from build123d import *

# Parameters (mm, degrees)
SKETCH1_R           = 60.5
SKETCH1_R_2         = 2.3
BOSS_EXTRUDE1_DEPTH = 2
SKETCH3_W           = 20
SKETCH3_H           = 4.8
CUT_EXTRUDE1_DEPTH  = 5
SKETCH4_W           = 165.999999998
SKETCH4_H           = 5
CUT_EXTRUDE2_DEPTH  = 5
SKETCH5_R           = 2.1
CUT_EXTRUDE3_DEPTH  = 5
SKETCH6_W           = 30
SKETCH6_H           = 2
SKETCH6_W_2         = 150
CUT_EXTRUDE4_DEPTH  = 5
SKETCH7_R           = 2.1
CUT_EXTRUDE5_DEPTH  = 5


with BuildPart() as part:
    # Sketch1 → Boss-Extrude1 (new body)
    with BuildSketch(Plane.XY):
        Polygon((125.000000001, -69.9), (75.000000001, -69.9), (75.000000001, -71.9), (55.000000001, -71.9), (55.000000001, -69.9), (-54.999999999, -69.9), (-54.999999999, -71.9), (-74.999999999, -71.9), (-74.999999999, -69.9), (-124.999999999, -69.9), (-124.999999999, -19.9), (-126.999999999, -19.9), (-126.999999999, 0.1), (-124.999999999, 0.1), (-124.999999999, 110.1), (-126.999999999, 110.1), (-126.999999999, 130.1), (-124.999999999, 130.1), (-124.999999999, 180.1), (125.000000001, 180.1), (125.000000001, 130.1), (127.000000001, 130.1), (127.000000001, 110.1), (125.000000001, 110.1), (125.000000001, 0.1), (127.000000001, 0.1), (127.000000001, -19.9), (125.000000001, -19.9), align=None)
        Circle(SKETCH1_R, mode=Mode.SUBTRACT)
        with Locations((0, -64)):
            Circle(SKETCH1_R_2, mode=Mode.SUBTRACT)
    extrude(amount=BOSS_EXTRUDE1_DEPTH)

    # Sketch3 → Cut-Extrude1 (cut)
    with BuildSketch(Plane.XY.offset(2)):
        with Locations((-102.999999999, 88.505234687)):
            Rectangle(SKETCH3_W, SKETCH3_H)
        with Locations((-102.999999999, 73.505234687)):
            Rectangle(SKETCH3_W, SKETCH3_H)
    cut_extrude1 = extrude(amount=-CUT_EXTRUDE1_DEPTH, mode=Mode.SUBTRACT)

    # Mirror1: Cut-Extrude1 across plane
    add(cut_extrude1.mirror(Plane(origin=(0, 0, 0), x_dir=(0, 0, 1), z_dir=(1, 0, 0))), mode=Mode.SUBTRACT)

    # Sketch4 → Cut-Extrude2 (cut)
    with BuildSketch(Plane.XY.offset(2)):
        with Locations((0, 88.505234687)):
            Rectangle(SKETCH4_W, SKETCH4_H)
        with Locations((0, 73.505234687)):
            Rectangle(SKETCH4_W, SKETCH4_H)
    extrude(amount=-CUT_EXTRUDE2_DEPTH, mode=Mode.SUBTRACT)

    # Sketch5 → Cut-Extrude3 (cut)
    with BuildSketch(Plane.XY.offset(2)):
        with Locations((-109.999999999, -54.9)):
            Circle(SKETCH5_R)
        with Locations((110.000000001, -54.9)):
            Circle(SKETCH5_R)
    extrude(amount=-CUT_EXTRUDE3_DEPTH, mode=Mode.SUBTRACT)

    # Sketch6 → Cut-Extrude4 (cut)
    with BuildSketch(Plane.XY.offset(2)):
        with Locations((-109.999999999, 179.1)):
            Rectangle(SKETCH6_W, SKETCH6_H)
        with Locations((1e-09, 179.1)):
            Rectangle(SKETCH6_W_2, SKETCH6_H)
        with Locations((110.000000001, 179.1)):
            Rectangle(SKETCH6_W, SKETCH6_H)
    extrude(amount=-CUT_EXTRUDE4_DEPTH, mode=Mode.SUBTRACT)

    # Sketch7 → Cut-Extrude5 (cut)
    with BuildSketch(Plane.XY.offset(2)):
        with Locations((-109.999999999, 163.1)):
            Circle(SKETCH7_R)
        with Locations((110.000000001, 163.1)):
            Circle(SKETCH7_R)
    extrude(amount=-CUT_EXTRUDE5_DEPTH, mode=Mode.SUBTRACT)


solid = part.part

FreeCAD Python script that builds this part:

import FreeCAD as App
import Part
import Sketcher
from FreeCAD import Vector


def add_polygon(sketch, points):
    """Adds a closed chain of lines whose ends are joined by coincident constraints."""
    first, n = sketch.GeometryCount, len(points)
    for a, b in zip(points, points[1:] + points[:1]):
        sketch.addGeometry(Part.LineSegment(App.Vector(*a, 0), App.Vector(*b, 0)), False)
    for i in range(n):
        sketch.addConstraint(Sketcher.Constraint("Coincident", first + i, 2, first + (i + 1) % n, 1))

doc = App.newDocument("Part")
body = doc.addObject("PartDesign::Body", "Body")

# Sketch on XY plane
sketch1 = body.newObject("Sketcher::SketchObject", "Sketch")
sketch1.AttachmentSupport = (doc.getObject("XY_Plane"), [""])
sketch1.MapMode = "FlatFace"
add_polygon(sketch1, [(75, -69.9), (125, -69.9), (125, -19.9), (127, -19.9), (127, 0.1), (125, 0.1), (125, 110.1), (127, 110.1), (127, 130.1), (125, 130.1), (125, 180.1), (-125, 180.1), (-125, 130.1), (-127, 130.1), (-127, 110.1), (-125, 110.1), (-125, 0.1), (-127, 0.1), (-127, -19.9), (-125, -19.9), (-125, -69.9), (-75, -69.9), (-75, -71.9), (-55, -71.9), (-55, -69.9), (55, -69.9), (55, -71.9), (75, -71.9)])  # lines 0-27
sketch1.addGeometry(Part.Circle(Vector(0, -64, 0), Vector(0, 0, 1), 2.3), False)  # 28
sketch1.addGeometry(Part.Circle(Vector(0, 0, 0), Vector(0, 0, 1), 60.5), False)  # 29
sketch1.addConstraint(Sketcher.Constraint("Horizontal", 0))
sketch1.addConstraint(Sketcher.Constraint("Vertical", 1))
sketch1.addConstraint(Sketcher.Constraint("Horizontal", 2))
sketch1.addConstraint(Sketcher.Constraint("Vertical", 3))
sketch1.addConstraint(Sketcher.Constraint("Horizontal", 4))
sketch1.addConstraint(Sketcher.Constraint("Vertical", 5))
sketch1.addConstraint(Sketcher.Constraint("Horizontal", 6))
sketch1.addConstraint(Sketcher.Constraint("Vertical", 7))
sketch1.addConstraint(Sketcher.Constraint("Horizontal", 8))
sketch1.addConstraint(Sketcher.Constraint("Vertical", 9))
sketch1.addConstraint(Sketcher.Constraint("Horizontal", 10))
sketch1.addConstraint(Sketcher.Constraint("Vertical", 11))
sketch1.addConstraint(Sketcher.Constraint("Horizontal", 12))
sketch1.addConstraint(Sketcher.Constraint("Vertical", 13))
sketch1.addConstraint(Sketcher.Constraint("Horizontal", 14))
sketch1.addConstraint(Sketcher.Constraint("Vertical", 15))
sketch1.addConstraint(Sketcher.Constraint("Horizontal", 16))
sketch1.addConstraint(Sketcher.Constraint("Vertical", 17))
sketch1.addConstraint(Sketcher.Constraint("Horizontal", 18))
sketch1.addConstraint(Sketcher.Constraint("Vertical", 19))
sketch1.addConstraint(Sketcher.Constraint("Horizontal", 20))
sketch1.addConstraint(Sketcher.Constraint("Vertical", 21))
sketch1.addConstraint(Sketcher.Constraint("Horizontal", 22))
sketch1.addConstraint(Sketcher.Constraint("Vertical", 23))
sketch1.addConstraint(Sketcher.Constraint("Horizontal", 24))
sketch1.addConstraint(Sketcher.Constraint("Vertical", 25))
sketch1.addConstraint(Sketcher.Constraint("Horizontal", 26))
sketch1.addConstraint(Sketcher.Constraint("Vertical", 27))
sketch1.addConstraint(Sketcher.Constraint("Coincident", 29, 3, -1, 1))
sketch1.addConstraint(Sketcher.Constraint("Symmetric", 8, 2, 11, 2, -2))
sketch1.addConstraint(Sketcher.Constraint("Symmetric", 6, 2, 13, 2, -2))
sketch1.addConstraint(Sketcher.Constraint("Symmetric", 4, 2, 15, 2, -2))
sketch1.addConstraint(Sketcher.Constraint("Symmetric", 2, 2, 17, 2, -2))
sketch1.addConstraint(Sketcher.Constraint("Symmetric", 0, 2, 19, 2, -2))
sketch1.addConstraint(Sketcher.Constraint("Symmetric", 22, 2, 25, 2, -2))
sketch1.addConstraint(Sketcher.Constraint("PointOnObject", 28, 3, -2))
sketch1.addConstraint(Sketcher.Constraint("Horizontal", 20, 2, 23, 2))
sketch1.addConstraint(Sketcher.Constraint("Vertical", 1, 2, 4, 2))
sketch1.addConstraint(Sketcher.Constraint("Vertical", 3, 2, 6, 2))
sketch1.addConstraint(Sketcher.Constraint("Vertical", 5, 2, 8, 2))
sketch1.addConstraint(Sketcher.Constraint("Equal", 0, 20))
sketch1.addConstraint(Sketcher.Constraint("Equal", 20, 1))
sketch1.addConstraint(Sketcher.Constraint("Equal", 26, 3))
sketch1.addConstraint(Sketcher.Constraint("Equal", 24, 5))
sketch1.addConstraint(Sketcher.Constraint("Equal", 3, 7))
sketch1.addConstraint(Sketcher.Constraint("Equal", 1, 9))
sketch1.addConstraint(Sketcher.Constraint("Equal", 18, 21))
sketch1.addConstraint(Sketcher.Constraint("Diameter", 29, 121.0))
sketch1.addConstraint(Sketcher.Constraint("Diameter", 28, 4.6))
sketch1.addConstraint(Sketcher.Constraint("DistanceX", 0, 1, 0, 2, 50.0))
sketch1.addConstraint(Sketcher.Constraint("DistanceX", 2, 1, 2, 2, 2.0))
sketch1.addConstraint(Sketcher.Constraint("DistanceX", 10, 2, 10, 1, 250.0))
sketch1.addConstraint(Sketcher.Constraint("DistanceX", 22, 1, 22, 2, 20.0))
sketch1.addConstraint(Sketcher.Constraint("DistanceY", 28, 3, -1, 1, 64.0))
sketch1.addConstraint(Sketcher.Constraint("DistanceY", 0, 2, -1, 1, 69.9))
pad1 = body.newObject("PartDesign::Pad", "Pad")
pad1.Profile = sketch1
pad1.Length = 2

# Sketch on XY plane
sketch2 = body.newObject("Sketcher::SketchObject", "Sketch001")
sketch2.AttachmentSupport = (doc.getObject("XY_Plane"), [""])
sketch2.MapMode = "FlatFace"
sketch2.AttachmentOffset = App.Placement(Vector(0, 0, 2), App.Rotation())
add_polygon(sketch2, [(-113, 90.905235), (-113, 86.105235), (-93, 86.105235), (-93, 90.905235)])  # lines 0-3
add_polygon(sketch2, [(-113, 75.905235), (-113, 71.105235), (-93, 71.105235), (-93, 75.905235)])  # lines 4-7
sketch2.addConstraint(Sketcher.Constraint("Vertical", 0))
sketch2.addConstraint(Sketcher.Constraint("Horizontal", 1))
sketch2.addConstraint(Sketcher.Constraint("Vertical", 2))
sketch2.addConstraint(Sketcher.Constraint("Horizontal", 3))
sketch2.addConstraint(Sketcher.Constraint("Vertical", 4))
sketch2.addConstraint(Sketcher.Constraint("Horizontal", 5))
sketch2.addConstraint(Sketcher.Constraint("Vertical", 6))
sketch2.addConstraint(Sketcher.Constraint("Horizontal", 7))
sketch2.addConstraint(Sketcher.Constraint("Vertical", 3, 2, 4, 2))
sketch2.addConstraint(Sketcher.Constraint("Vertical", 2, 2, 5, 2))
sketch2.addConstraint(Sketcher.Constraint("Equal", 2, 4))
sketch2.addConstraint(Sketcher.Constraint("DistanceX", 1, 1, 1, 2, 20.0))
sketch2.addConstraint(Sketcher.Constraint("DistanceY", 0, 2, 0, 1, 4.8))
sketch2.addConstraint(Sketcher.Constraint("DistanceX", 0, 2, -1, 1, 113.0))
sketch2.addConstraint(Sketcher.Constraint("DistanceY", 4, 2, 0, 2, 15.0))
sketch2.addConstraint(Sketcher.Constraint("DistanceY", -1, 1, 0, 2, 86.105235))
pocket1 = body.newObject("PartDesign::Pocket", "Pocket")
pocket1.Profile = sketch2
pocket1.Length = 5
doc.recompute()

mirrored = body.newObject("PartDesign::Mirrored", "Mirrored")
mirrored.Originals = [pocket1]
mirrored.MirrorPlane = (doc.getObject("YZ_Plane"), [""])
body.Tip = mirrored

# Sketch on XY plane
sketch3 = body.newObject("Sketcher::SketchObject", "Sketch002")
sketch3.AttachmentSupport = (doc.getObject("XY_Plane"), [""])
sketch3.MapMode = "FlatFace"
sketch3.AttachmentOffset = App.Placement(Vector(0, 0, 2), App.Rotation())
add_polygon(sketch3, [(-83, 91.005235), (-83, 86.005235), (83, 86.005235), (83, 91.005235)])  # lines 0-3
add_polygon(sketch3, [(-83, 76.005235), (-83, 71.005235), (83, 71.005235), (83, 76.005235)])  # lines 4-7
sketch3.addConstraint(Sketcher.Constraint("Vertical", 0))
sketch3.addConstraint(Sketcher.Constraint("Horizontal", 1))
sketch3.addConstraint(Sketcher.Constraint("Vertical", 2))
sketch3.addConstraint(Sketcher.Constraint("Horizontal", 3))
sketch3.addConstraint(Sketcher.Constraint("Vertical", 4))
sketch3.addConstraint(Sketcher.Constraint("Horizontal", 5))
sketch3.addConstraint(Sketcher.Constraint("Vertical", 6))
sketch3.addConstraint(Sketcher.Constraint("Horizontal", 7))
sketch3.addConstraint(Sketcher.Constraint("Vertical", 3, 2, 4, 2))
sketch3.addConstraint(Sketcher.Constraint("Vertical", 2, 2, 5, 2))
sketch3.addConstraint(Sketcher.Constraint("Equal", 2, 4))
sketch3.addConstraint(Sketcher.Constraint("DistanceX", 1, 1, 1, 2, 166.0))
sketch3.addConstraint(Sketcher.Constraint("DistanceY", 0, 2, 0, 1, 5.0))
sketch3.addConstraint(Sketcher.Constraint("DistanceX", 0, 2, -1, 1, 83.0))
sketch3.addConstraint(Sketcher.Constraint("DistanceY", 4, 2, 0, 2, 15.0))
sketch3.addConstraint(Sketcher.Constraint("DistanceY", -1, 1, 0, 2, 86.005235))
pocket2 = body.newObject("PartDesign::Pocket", "Pocket001")
pocket2.Profile = sketch3
pocket2.Length = 5

# Sketch on XY plane
sketch4 = body.newObject("Sketcher::SketchObject", "Sketch003")
sketch4.AttachmentSupport = (doc.getObject("XY_Plane"), [""])
sketch4.MapMode = "FlatFace"
sketch4.AttachmentOffset = App.Placement(Vector(0, 0, 2), App.Rotation())
sketch4.addGeometry(Part.Circle(Vector(-110, -54.9, 0), Vector(0, 0, 1), 2.1), False)
sketch4.addGeometry(Part.Circle(Vector(110, -54.9, 0), Vector(0, 0, 1), 2.1), False)
sketch4.addConstraint(Sketcher.Constraint("Equal", 0, 1))
sketch4.addConstraint(Sketcher.Constraint("Symmetric", 0, 3, 1, 3, -2))
sketch4.addConstraint(Sketcher.Constraint("Diameter", 0, 4.2))
sketch4.addConstraint(Sketcher.Constraint("DistanceX", 0, 3, -1, 1, 110.0))
sketch4.addConstraint(Sketcher.Constraint("DistanceY", 0, 3, -1, 1, 54.9))
pocket3 = body.newObject("PartDesign::Pocket", "Pocket002")
pocket3.Profile = sketch4
pocket3.Length = 5

# Sketch on XY plane
sketch5 = body.newObject("Sketcher::SketchObject", "Sketch004")
sketch5.AttachmentSupport = (doc.getObject("XY_Plane"), [""])
sketch5.MapMode = "FlatFace"
sketch5.AttachmentOffset = App.Placement(Vector(0, 0, 2), App.Rotation())
add_polygon(sketch5, [(-125, 180.1), (-125, 178.1), (-95, 178.1), (-95, 180.1)])  # lines 0-3
add_polygon(sketch5, [(-75, 180.1), (-75, 178.1), (75, 178.1), (75, 180.1)])  # lines 4-7
add_polygon(sketch5, [(95, 180.1), (95, 178.1), (125, 178.1), (125, 180.1)])  # lines 8-11
sketch5.addConstraint(Sketcher.Constraint("Vertical", 0))
sketch5.addConstraint(Sketcher.Constraint("Horizontal", 1))
sketch5.addConstraint(Sketcher.Constraint("Vertical", 2))
sketch5.addConstraint(Sketcher.Constraint("Horizontal", 3))
sketch5.addConstraint(Sketcher.Constraint("Vertical", 4))
sketch5.addConstraint(Sketcher.Constraint("Horizontal", 5))
sketch5.addConstraint(Sketcher.Constraint("Vertical", 6))
sketch5.addConstraint(Sketcher.Constraint("Horizontal", 7))
sketch5.addConstraint(Sketcher.Constraint("Vertical", 8))
sketch5.addConstraint(Sketcher.Constraint("Horizontal", 9))
sketch5.addConstraint(Sketcher.Constraint("Vertical", 10))
sketch5.addConstraint(Sketcher.Constraint("Horizontal", 11))
sketch5.addConstraint(Sketcher.Constraint("Symmetric", 1, 2, 8, 2, -2))
sketch5.addConstraint(Sketcher.Constraint("Symmetric", 3, 2, 10, 2, -2))
sketch5.addConstraint(Sketcher.Constraint("Horizontal", 1, 2, 4, 2))
sketch5.addConstraint(Sketcher.Constraint("Horizontal", 3, 2, 6, 2))
sketch5.addConstraint(Sketcher.Constraint("DistanceX", 1, 1, 1, 2, 30.0))
sketch5.addConstraint(Sketcher.Constraint("DistanceX", 5, 1, 5, 2, 150.0))
sketch5.addConstraint(Sketcher.Constraint("DistanceY", 0, 2, 0, 1, 2.0))
sketch5.addConstraint(Sketcher.Constraint("DistanceX", 0, 2, -1, 1, 125.0))
sketch5.addConstraint(Sketcher.Constraint("DistanceX", 4, 2, -1, 1, 75.0))
sketch5.addConstraint(Sketcher.Constraint("DistanceY", -1, 1, 0, 2, 178.1))
pocket4 = body.newObject("PartDesign::Pocket", "Pocket003")
pocket4.Profile = sketch5
pocket4.Length = 5

# Sketch on XY plane
sketch6 = body.newObject("Sketcher::SketchObject", "Sketch005")
sketch6.AttachmentSupport = (doc.getObject("XY_Plane"), [""])
sketch6.MapMode = "FlatFace"
sketch6.AttachmentOffset = App.Placement(Vector(0, 0, 2), App.Rotation())
sketch6.addGeometry(Part.Circle(Vector(-110, 163.1, 0), Vector(0, 0, 1), 2.1), False)
sketch6.addGeometry(Part.Circle(Vector(110, 163.1, 0), Vector(0, 0, 1), 2.1), False)
sketch6.addConstraint(Sketcher.Constraint("Equal", 0, 1))
sketch6.addConstraint(Sketcher.Constraint("Symmetric", 0, 3, 1, 3, -2))
sketch6.addConstraint(Sketcher.Constraint("Diameter", 0, 4.2))
sketch6.addConstraint(Sketcher.Constraint("DistanceX", 0, 3, -1, 1, 110.0))
sketch6.addConstraint(Sketcher.Constraint("DistanceY", -1, 1, 0, 3, 163.1))
pocket5 = body.newObject("PartDesign::Pocket", "Pocket004")
pocket5.Profile = sketch6
pocket5.Length = 5

doc.recompute()
